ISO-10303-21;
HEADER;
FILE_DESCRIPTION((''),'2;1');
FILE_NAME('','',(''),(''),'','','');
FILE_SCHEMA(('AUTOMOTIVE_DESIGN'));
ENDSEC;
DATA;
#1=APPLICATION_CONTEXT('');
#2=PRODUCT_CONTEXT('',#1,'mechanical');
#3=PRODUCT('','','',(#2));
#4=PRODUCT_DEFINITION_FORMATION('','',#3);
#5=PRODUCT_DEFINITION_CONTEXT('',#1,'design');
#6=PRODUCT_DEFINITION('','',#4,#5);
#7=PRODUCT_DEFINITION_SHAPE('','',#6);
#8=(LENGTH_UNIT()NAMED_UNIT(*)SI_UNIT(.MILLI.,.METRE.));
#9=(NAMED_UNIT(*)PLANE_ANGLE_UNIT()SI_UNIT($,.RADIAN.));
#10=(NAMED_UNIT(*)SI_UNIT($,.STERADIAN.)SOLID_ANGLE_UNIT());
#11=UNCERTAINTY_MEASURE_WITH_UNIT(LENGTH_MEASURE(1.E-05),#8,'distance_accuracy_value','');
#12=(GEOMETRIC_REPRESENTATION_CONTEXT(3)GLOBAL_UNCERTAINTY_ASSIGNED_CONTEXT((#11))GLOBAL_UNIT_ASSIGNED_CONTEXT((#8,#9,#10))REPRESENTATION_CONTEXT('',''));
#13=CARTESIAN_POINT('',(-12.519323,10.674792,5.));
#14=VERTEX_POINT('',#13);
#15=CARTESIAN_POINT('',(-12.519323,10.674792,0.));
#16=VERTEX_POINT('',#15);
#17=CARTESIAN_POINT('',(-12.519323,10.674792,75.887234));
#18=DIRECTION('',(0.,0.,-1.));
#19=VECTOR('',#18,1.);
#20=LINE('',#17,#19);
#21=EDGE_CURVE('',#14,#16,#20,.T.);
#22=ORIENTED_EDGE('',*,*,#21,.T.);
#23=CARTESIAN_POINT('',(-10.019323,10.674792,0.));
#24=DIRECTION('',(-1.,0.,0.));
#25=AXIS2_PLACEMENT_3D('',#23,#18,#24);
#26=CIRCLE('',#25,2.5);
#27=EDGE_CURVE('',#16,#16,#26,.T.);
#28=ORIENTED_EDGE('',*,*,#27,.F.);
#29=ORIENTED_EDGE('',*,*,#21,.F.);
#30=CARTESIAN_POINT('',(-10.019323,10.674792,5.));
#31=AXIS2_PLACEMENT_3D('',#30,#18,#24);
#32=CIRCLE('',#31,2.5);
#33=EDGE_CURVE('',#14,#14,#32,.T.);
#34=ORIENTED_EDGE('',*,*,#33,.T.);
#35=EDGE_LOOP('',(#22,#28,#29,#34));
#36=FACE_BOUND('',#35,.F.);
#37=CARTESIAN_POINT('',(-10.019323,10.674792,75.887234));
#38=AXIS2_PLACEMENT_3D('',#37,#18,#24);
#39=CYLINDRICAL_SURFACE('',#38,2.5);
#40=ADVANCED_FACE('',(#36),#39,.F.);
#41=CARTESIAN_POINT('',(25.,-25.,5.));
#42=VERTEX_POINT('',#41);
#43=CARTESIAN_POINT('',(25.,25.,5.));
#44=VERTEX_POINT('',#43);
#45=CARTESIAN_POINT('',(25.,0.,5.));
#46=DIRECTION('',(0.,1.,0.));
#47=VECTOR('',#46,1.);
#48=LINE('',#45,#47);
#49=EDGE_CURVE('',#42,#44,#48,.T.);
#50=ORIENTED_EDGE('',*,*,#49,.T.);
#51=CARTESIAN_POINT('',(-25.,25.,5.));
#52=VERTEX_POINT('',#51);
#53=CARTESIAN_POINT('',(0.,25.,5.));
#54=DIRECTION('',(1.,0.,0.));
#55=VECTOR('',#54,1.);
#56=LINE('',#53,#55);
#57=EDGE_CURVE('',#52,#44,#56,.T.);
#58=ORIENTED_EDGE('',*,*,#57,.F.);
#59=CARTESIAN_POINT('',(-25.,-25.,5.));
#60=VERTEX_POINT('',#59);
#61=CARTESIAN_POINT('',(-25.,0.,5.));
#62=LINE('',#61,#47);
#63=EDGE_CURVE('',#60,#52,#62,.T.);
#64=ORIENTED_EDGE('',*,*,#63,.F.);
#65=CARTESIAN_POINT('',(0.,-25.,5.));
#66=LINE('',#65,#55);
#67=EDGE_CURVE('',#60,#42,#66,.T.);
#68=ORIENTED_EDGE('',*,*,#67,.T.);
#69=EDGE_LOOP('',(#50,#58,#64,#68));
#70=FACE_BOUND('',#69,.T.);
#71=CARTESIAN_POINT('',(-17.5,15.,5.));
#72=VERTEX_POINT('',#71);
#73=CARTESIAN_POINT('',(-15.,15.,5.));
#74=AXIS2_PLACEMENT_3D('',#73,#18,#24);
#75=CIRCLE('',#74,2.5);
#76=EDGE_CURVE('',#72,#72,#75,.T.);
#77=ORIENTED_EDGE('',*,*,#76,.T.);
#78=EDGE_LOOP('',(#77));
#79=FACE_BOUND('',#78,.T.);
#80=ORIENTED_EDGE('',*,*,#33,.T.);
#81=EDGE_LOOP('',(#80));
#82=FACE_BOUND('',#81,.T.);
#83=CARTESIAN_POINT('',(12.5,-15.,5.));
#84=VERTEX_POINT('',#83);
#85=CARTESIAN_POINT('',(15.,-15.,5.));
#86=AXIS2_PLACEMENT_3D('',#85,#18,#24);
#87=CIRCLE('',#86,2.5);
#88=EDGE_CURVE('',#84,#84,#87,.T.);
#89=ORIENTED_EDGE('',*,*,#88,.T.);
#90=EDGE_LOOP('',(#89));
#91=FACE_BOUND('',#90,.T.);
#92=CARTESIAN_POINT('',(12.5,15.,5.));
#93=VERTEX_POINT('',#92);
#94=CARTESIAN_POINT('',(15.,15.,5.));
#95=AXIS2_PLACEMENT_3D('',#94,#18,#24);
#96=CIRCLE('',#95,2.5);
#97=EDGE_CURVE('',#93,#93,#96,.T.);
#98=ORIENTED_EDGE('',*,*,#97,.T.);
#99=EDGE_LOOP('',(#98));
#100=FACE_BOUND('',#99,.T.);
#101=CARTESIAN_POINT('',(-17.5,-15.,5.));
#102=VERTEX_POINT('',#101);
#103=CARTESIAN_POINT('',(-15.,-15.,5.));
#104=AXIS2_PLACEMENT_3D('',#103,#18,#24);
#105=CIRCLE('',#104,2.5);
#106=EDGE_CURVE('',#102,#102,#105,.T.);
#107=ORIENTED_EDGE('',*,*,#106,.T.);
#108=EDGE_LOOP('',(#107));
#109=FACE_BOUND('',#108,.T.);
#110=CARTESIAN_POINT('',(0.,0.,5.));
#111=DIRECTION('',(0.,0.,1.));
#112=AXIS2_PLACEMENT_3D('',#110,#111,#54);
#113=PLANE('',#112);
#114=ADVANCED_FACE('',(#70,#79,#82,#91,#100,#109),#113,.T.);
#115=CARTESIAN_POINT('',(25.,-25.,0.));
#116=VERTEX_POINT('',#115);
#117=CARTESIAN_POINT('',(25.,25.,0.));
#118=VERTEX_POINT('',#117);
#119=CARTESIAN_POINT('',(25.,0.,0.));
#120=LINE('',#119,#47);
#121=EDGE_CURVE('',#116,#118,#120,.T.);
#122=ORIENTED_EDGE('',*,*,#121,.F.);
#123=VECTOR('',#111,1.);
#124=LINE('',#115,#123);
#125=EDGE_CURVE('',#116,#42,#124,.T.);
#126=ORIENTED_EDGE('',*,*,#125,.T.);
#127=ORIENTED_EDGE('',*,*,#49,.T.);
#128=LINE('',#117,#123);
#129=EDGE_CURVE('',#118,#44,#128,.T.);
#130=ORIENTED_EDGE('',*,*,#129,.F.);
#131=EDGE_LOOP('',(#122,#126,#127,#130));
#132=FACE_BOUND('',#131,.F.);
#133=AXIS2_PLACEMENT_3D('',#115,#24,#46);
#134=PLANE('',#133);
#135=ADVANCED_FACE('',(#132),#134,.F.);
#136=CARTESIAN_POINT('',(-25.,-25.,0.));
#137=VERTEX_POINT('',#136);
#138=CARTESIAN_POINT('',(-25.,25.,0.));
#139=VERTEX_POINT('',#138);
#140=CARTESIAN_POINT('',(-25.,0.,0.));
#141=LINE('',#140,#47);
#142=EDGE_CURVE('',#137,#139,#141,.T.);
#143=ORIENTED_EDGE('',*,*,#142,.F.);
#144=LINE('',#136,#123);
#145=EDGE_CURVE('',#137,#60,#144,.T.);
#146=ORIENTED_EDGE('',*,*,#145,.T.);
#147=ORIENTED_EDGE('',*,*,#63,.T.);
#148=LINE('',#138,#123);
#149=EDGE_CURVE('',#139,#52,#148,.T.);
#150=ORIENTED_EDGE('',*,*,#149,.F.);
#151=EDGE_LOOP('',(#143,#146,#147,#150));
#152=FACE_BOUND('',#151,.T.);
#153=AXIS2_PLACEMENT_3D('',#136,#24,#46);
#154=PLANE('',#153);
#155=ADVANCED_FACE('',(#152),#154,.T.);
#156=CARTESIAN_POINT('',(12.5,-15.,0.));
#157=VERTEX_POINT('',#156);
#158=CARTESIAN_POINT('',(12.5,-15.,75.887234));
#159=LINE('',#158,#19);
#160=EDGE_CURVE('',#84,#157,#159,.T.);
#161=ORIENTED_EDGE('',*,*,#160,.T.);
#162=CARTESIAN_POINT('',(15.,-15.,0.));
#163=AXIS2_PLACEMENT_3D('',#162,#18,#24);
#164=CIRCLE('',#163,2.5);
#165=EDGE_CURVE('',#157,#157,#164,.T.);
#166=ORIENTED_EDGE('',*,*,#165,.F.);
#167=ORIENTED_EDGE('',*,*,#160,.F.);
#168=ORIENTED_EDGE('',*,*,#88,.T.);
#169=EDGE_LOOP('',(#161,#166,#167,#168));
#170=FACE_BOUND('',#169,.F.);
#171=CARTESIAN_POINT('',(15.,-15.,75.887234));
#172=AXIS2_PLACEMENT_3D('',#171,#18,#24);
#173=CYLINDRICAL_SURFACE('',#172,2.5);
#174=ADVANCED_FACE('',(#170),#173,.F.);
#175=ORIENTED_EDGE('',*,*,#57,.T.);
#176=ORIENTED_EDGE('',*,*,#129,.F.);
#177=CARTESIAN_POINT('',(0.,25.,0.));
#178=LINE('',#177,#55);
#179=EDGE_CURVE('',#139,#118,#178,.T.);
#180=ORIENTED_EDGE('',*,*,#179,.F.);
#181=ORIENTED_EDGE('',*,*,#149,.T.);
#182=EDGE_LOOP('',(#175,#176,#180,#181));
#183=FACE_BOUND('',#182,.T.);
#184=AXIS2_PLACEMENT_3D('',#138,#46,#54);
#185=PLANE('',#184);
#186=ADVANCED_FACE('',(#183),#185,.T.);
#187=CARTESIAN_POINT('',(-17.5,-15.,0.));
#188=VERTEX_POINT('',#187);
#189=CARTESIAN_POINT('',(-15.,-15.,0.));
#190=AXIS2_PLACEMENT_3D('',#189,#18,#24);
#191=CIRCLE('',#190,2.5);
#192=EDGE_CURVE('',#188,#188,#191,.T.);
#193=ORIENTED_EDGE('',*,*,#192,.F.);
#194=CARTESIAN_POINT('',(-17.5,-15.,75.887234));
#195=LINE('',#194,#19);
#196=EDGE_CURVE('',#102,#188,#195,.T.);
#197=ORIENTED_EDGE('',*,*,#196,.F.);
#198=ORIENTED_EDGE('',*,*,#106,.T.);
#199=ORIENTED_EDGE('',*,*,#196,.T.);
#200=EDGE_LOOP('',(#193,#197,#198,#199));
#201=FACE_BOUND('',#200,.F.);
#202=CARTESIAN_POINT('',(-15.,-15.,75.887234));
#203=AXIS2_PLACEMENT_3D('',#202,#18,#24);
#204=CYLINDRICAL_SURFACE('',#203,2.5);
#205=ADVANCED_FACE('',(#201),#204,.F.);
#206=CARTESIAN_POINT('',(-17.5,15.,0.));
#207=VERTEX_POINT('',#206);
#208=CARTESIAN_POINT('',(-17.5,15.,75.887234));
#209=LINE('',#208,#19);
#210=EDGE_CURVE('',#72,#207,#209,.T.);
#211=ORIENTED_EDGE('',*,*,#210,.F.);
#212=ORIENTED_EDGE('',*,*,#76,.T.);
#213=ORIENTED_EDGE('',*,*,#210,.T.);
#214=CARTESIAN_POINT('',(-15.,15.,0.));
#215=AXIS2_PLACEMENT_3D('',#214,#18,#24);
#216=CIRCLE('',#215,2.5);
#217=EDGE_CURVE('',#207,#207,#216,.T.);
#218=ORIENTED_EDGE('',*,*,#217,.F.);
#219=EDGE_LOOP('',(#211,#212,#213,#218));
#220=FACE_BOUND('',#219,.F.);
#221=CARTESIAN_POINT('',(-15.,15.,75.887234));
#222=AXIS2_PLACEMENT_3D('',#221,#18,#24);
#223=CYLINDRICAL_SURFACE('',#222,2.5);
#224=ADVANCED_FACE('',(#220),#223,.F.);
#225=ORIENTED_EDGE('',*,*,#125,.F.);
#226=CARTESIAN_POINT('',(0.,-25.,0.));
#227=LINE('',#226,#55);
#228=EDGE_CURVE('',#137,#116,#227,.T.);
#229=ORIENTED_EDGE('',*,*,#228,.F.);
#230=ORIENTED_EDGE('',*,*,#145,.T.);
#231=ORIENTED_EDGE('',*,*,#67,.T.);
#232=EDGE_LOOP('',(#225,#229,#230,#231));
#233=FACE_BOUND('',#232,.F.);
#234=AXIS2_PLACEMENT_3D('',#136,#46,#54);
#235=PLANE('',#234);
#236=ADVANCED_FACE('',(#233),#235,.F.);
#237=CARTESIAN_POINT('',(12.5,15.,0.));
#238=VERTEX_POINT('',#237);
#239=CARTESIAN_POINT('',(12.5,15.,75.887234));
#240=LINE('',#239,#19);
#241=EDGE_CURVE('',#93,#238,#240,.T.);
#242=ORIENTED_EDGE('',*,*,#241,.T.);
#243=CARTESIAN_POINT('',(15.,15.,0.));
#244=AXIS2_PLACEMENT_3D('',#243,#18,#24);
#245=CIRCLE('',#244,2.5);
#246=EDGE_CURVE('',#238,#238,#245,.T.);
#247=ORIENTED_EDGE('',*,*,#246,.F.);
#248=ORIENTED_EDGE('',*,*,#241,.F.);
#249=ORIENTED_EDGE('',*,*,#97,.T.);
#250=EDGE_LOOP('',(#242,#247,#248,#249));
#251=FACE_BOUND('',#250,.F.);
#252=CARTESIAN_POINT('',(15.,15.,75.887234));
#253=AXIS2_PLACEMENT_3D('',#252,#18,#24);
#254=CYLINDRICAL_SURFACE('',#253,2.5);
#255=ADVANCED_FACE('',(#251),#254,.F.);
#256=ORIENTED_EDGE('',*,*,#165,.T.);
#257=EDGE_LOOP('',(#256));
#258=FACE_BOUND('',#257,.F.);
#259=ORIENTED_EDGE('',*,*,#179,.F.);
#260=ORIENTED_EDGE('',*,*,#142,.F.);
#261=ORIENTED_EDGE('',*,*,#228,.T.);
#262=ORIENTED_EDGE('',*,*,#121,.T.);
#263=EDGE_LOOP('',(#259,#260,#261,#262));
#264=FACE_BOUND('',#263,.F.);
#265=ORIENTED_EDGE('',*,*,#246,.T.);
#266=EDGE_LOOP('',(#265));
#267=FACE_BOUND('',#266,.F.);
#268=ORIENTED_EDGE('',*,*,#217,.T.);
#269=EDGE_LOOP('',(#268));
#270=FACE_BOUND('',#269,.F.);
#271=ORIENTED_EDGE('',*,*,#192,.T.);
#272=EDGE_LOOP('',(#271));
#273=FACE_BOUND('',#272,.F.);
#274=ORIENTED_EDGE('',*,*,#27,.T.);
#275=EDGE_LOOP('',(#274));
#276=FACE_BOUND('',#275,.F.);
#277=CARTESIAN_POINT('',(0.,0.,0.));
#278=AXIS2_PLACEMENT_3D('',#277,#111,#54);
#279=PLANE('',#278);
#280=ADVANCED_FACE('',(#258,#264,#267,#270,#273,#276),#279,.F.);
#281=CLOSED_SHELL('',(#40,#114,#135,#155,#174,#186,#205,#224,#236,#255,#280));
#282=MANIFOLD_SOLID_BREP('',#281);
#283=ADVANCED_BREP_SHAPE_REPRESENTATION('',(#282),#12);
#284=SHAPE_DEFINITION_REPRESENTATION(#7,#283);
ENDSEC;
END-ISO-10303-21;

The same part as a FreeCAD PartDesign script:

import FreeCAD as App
import Part
import Sketcher
Q = App.Units.Quantity

doc = App.newDocument("Part")
params = doc.addObject("Spreadsheet::Sheet", "Params")
for row, (alias, value) in enumerate([
    ("sketch1_width", "50 mm"),
    ("pad1_length", "5 mm"),
    ("sketch2_diameter", "5 mm"),
    ("hole_diameter", "5 mm"),
    ("sketch3_diameter", "5 mm"),
    ("hole2_diameter", "5 mm"),
], start=1):
    params.set(f"A{row}", alias)
    params.set(f"B{row}", "=" + value)
    params.setAlias(f"B{row}", alias)

body = doc.addObject("PartDesign::Body", "Body")

# Sketch on XY plane
sketch1 = doc.addObject("Sketcher::SketchObject", "Sketch")
body.addObject(sketch1)
sketch1.AttachmentSupport = (doc.XY_Plane, [""])
sketch1.MapMode = "FlatFace"
sketch1.addGeometry([
    Part.LineSegment(App.Vector(-25, 25, 0), App.Vector(-25, -25, 0)),
    Part.LineSegment(App.Vector(-25, -25, 0), App.Vector(25, -25, 0)),
    Part.LineSegment(App.Vector(25, -25, 0), App.Vector(25, 25, 0)),
    Part.LineSegment(App.Vector(25, 25, 0), App.Vector(-25, 25, 0)),
], False)
sketch1.addConstraint([
    Sketcher.Constraint("Coincident", 0, 2, 1, 1),
    Sketcher.Constraint("Coincident", 1, 2, 2, 1),
    Sketcher.Constraint("Coincident", 2, 2, 3, 1),
    Sketcher.Constraint("Coincident", 3, 2, 0, 1),
    Sketcher.Constraint("Vertical", 0),
    Sketcher.Constraint("Horizontal", 1),
    Sketcher.Constraint("Vertical", 2),
    Sketcher.Constraint("Horizontal", 3),
    Sketcher.Constraint("Symmetric", 0, 2, 2, 2, -1, 1),
    Sketcher.Constraint("Equal", 3, 0),
    Sketcher.Constraint("DistanceX", 1, 1, 1, 2, Q("50 mm")),
])
sketch1.setExpression("Constraints[10]", "Params.sketch1_width")
pad1 = doc.addObject("PartDesign::Pad", "Pad")
body.addObject(pad1)
pad1.Profile = sketch1
pad1.setExpression("Length", "Params.pad1_length")

# Sketch on XY plane
sketch2 = doc.addObject("Sketcher::SketchObject", "Sketch001")
body.addObject(sketch2)
sketch2.AttachmentSupport = (doc.XY_Plane, [""])
sketch2.MapMode = "FlatFace"
sketch2.AttachmentOffset = App.Placement(App.Vector(0, 0, 5), App.Rotation())
sketch2.addGeometry(Part.Circle(App.Vector(-10, 10.7, 0), App.Vector(0, 0, 1), 2.5), False)
sketch2.addConstraint([
    Sketcher.Constraint("Diameter", 0, Q("5 mm")),
    Sketcher.Constraint("DistanceX", 0, 3, -1, 1, Q("10.019323 mm")),
    Sketcher.Constraint("DistanceY", -1, 1, 0, 3, Q("10.674792 mm")),
])
sketch2.setExpression("Constraints[0]", "Params.sketch2_diameter")
doc.recompute()
hole = doc.addObject("PartDesign::Hole", "Hole")
body.addObject(hole)
hole.Profile = sketch2
hole.ThreadType = "None"
hole.setExpression("Diameter", "Params.hole_diameter")
hole.DepthType = "ThroughAll"

# Sketch on XY plane
sketch3 = doc.addObject("Sketcher::SketchObject", "Sketch002")
body.addObject(sketch3)
sketch3.AttachmentSupport = (doc.XY_Plane, [""])
sketch3.MapMode = "FlatFace"
sketch3.AttachmentOffset = App.Placement(App.Vector(0, 0, 5), App.Rotation())
sketch3.addGeometry([
    Part.Circle(App.Vector(-15, 15, 0), App.Vector(0, 0, 1), 2.5),
    Part.Circle(App.Vector(15, 15, 0), App.Vector(0, 0, 1), 2.5),
    Part.Circle(App.Vector(15, -15, 0), App.Vector(0, 0, 1), 2.5),
    Part.Circle(App.Vector(-15, -15, 0), App.Vector(0, 0, 1), 2.5),
], False)
sketch3.addConstraint([
    Sketcher.Constraint("Equal", 0, 1),
    Sketcher.Constraint("Equal", 1, 2),
    Sketcher.Constraint("Equal", 2, 3),
    Sketcher.Constraint("Symmetric", 0, 3, 2, 3, -1, 1),
    Sketcher.Constraint("Symmetric", 1, 3, 3, 3, -1, 1),
    Sketcher.Constraint("Symmetric", 0, 3, 1, 3, -2),
    Sketcher.Constraint("Diameter", 0, Q("5 mm")),
    Sketcher.Constraint("DistanceX", 0, 3, -1, 1, Q("15 mm")),
    Sketcher.Constraint("DistanceY", -1, 1, 0, 3, Q("15 mm")),
])
sketch3.setExpression("Constraints[6]", "Params.sketch3_diameter")
doc.recompute()
hole2 = doc.addObject("PartDesign::Hole", "Hole001")
body.addObject(hole2)
hole2.Profile = sketch3
hole2.ThreadType = "None"
hole2.setExpression("Diameter", "Params.hole2_diameter")
hole2.DepthType = "ThroughAll"

doc.recompute()
